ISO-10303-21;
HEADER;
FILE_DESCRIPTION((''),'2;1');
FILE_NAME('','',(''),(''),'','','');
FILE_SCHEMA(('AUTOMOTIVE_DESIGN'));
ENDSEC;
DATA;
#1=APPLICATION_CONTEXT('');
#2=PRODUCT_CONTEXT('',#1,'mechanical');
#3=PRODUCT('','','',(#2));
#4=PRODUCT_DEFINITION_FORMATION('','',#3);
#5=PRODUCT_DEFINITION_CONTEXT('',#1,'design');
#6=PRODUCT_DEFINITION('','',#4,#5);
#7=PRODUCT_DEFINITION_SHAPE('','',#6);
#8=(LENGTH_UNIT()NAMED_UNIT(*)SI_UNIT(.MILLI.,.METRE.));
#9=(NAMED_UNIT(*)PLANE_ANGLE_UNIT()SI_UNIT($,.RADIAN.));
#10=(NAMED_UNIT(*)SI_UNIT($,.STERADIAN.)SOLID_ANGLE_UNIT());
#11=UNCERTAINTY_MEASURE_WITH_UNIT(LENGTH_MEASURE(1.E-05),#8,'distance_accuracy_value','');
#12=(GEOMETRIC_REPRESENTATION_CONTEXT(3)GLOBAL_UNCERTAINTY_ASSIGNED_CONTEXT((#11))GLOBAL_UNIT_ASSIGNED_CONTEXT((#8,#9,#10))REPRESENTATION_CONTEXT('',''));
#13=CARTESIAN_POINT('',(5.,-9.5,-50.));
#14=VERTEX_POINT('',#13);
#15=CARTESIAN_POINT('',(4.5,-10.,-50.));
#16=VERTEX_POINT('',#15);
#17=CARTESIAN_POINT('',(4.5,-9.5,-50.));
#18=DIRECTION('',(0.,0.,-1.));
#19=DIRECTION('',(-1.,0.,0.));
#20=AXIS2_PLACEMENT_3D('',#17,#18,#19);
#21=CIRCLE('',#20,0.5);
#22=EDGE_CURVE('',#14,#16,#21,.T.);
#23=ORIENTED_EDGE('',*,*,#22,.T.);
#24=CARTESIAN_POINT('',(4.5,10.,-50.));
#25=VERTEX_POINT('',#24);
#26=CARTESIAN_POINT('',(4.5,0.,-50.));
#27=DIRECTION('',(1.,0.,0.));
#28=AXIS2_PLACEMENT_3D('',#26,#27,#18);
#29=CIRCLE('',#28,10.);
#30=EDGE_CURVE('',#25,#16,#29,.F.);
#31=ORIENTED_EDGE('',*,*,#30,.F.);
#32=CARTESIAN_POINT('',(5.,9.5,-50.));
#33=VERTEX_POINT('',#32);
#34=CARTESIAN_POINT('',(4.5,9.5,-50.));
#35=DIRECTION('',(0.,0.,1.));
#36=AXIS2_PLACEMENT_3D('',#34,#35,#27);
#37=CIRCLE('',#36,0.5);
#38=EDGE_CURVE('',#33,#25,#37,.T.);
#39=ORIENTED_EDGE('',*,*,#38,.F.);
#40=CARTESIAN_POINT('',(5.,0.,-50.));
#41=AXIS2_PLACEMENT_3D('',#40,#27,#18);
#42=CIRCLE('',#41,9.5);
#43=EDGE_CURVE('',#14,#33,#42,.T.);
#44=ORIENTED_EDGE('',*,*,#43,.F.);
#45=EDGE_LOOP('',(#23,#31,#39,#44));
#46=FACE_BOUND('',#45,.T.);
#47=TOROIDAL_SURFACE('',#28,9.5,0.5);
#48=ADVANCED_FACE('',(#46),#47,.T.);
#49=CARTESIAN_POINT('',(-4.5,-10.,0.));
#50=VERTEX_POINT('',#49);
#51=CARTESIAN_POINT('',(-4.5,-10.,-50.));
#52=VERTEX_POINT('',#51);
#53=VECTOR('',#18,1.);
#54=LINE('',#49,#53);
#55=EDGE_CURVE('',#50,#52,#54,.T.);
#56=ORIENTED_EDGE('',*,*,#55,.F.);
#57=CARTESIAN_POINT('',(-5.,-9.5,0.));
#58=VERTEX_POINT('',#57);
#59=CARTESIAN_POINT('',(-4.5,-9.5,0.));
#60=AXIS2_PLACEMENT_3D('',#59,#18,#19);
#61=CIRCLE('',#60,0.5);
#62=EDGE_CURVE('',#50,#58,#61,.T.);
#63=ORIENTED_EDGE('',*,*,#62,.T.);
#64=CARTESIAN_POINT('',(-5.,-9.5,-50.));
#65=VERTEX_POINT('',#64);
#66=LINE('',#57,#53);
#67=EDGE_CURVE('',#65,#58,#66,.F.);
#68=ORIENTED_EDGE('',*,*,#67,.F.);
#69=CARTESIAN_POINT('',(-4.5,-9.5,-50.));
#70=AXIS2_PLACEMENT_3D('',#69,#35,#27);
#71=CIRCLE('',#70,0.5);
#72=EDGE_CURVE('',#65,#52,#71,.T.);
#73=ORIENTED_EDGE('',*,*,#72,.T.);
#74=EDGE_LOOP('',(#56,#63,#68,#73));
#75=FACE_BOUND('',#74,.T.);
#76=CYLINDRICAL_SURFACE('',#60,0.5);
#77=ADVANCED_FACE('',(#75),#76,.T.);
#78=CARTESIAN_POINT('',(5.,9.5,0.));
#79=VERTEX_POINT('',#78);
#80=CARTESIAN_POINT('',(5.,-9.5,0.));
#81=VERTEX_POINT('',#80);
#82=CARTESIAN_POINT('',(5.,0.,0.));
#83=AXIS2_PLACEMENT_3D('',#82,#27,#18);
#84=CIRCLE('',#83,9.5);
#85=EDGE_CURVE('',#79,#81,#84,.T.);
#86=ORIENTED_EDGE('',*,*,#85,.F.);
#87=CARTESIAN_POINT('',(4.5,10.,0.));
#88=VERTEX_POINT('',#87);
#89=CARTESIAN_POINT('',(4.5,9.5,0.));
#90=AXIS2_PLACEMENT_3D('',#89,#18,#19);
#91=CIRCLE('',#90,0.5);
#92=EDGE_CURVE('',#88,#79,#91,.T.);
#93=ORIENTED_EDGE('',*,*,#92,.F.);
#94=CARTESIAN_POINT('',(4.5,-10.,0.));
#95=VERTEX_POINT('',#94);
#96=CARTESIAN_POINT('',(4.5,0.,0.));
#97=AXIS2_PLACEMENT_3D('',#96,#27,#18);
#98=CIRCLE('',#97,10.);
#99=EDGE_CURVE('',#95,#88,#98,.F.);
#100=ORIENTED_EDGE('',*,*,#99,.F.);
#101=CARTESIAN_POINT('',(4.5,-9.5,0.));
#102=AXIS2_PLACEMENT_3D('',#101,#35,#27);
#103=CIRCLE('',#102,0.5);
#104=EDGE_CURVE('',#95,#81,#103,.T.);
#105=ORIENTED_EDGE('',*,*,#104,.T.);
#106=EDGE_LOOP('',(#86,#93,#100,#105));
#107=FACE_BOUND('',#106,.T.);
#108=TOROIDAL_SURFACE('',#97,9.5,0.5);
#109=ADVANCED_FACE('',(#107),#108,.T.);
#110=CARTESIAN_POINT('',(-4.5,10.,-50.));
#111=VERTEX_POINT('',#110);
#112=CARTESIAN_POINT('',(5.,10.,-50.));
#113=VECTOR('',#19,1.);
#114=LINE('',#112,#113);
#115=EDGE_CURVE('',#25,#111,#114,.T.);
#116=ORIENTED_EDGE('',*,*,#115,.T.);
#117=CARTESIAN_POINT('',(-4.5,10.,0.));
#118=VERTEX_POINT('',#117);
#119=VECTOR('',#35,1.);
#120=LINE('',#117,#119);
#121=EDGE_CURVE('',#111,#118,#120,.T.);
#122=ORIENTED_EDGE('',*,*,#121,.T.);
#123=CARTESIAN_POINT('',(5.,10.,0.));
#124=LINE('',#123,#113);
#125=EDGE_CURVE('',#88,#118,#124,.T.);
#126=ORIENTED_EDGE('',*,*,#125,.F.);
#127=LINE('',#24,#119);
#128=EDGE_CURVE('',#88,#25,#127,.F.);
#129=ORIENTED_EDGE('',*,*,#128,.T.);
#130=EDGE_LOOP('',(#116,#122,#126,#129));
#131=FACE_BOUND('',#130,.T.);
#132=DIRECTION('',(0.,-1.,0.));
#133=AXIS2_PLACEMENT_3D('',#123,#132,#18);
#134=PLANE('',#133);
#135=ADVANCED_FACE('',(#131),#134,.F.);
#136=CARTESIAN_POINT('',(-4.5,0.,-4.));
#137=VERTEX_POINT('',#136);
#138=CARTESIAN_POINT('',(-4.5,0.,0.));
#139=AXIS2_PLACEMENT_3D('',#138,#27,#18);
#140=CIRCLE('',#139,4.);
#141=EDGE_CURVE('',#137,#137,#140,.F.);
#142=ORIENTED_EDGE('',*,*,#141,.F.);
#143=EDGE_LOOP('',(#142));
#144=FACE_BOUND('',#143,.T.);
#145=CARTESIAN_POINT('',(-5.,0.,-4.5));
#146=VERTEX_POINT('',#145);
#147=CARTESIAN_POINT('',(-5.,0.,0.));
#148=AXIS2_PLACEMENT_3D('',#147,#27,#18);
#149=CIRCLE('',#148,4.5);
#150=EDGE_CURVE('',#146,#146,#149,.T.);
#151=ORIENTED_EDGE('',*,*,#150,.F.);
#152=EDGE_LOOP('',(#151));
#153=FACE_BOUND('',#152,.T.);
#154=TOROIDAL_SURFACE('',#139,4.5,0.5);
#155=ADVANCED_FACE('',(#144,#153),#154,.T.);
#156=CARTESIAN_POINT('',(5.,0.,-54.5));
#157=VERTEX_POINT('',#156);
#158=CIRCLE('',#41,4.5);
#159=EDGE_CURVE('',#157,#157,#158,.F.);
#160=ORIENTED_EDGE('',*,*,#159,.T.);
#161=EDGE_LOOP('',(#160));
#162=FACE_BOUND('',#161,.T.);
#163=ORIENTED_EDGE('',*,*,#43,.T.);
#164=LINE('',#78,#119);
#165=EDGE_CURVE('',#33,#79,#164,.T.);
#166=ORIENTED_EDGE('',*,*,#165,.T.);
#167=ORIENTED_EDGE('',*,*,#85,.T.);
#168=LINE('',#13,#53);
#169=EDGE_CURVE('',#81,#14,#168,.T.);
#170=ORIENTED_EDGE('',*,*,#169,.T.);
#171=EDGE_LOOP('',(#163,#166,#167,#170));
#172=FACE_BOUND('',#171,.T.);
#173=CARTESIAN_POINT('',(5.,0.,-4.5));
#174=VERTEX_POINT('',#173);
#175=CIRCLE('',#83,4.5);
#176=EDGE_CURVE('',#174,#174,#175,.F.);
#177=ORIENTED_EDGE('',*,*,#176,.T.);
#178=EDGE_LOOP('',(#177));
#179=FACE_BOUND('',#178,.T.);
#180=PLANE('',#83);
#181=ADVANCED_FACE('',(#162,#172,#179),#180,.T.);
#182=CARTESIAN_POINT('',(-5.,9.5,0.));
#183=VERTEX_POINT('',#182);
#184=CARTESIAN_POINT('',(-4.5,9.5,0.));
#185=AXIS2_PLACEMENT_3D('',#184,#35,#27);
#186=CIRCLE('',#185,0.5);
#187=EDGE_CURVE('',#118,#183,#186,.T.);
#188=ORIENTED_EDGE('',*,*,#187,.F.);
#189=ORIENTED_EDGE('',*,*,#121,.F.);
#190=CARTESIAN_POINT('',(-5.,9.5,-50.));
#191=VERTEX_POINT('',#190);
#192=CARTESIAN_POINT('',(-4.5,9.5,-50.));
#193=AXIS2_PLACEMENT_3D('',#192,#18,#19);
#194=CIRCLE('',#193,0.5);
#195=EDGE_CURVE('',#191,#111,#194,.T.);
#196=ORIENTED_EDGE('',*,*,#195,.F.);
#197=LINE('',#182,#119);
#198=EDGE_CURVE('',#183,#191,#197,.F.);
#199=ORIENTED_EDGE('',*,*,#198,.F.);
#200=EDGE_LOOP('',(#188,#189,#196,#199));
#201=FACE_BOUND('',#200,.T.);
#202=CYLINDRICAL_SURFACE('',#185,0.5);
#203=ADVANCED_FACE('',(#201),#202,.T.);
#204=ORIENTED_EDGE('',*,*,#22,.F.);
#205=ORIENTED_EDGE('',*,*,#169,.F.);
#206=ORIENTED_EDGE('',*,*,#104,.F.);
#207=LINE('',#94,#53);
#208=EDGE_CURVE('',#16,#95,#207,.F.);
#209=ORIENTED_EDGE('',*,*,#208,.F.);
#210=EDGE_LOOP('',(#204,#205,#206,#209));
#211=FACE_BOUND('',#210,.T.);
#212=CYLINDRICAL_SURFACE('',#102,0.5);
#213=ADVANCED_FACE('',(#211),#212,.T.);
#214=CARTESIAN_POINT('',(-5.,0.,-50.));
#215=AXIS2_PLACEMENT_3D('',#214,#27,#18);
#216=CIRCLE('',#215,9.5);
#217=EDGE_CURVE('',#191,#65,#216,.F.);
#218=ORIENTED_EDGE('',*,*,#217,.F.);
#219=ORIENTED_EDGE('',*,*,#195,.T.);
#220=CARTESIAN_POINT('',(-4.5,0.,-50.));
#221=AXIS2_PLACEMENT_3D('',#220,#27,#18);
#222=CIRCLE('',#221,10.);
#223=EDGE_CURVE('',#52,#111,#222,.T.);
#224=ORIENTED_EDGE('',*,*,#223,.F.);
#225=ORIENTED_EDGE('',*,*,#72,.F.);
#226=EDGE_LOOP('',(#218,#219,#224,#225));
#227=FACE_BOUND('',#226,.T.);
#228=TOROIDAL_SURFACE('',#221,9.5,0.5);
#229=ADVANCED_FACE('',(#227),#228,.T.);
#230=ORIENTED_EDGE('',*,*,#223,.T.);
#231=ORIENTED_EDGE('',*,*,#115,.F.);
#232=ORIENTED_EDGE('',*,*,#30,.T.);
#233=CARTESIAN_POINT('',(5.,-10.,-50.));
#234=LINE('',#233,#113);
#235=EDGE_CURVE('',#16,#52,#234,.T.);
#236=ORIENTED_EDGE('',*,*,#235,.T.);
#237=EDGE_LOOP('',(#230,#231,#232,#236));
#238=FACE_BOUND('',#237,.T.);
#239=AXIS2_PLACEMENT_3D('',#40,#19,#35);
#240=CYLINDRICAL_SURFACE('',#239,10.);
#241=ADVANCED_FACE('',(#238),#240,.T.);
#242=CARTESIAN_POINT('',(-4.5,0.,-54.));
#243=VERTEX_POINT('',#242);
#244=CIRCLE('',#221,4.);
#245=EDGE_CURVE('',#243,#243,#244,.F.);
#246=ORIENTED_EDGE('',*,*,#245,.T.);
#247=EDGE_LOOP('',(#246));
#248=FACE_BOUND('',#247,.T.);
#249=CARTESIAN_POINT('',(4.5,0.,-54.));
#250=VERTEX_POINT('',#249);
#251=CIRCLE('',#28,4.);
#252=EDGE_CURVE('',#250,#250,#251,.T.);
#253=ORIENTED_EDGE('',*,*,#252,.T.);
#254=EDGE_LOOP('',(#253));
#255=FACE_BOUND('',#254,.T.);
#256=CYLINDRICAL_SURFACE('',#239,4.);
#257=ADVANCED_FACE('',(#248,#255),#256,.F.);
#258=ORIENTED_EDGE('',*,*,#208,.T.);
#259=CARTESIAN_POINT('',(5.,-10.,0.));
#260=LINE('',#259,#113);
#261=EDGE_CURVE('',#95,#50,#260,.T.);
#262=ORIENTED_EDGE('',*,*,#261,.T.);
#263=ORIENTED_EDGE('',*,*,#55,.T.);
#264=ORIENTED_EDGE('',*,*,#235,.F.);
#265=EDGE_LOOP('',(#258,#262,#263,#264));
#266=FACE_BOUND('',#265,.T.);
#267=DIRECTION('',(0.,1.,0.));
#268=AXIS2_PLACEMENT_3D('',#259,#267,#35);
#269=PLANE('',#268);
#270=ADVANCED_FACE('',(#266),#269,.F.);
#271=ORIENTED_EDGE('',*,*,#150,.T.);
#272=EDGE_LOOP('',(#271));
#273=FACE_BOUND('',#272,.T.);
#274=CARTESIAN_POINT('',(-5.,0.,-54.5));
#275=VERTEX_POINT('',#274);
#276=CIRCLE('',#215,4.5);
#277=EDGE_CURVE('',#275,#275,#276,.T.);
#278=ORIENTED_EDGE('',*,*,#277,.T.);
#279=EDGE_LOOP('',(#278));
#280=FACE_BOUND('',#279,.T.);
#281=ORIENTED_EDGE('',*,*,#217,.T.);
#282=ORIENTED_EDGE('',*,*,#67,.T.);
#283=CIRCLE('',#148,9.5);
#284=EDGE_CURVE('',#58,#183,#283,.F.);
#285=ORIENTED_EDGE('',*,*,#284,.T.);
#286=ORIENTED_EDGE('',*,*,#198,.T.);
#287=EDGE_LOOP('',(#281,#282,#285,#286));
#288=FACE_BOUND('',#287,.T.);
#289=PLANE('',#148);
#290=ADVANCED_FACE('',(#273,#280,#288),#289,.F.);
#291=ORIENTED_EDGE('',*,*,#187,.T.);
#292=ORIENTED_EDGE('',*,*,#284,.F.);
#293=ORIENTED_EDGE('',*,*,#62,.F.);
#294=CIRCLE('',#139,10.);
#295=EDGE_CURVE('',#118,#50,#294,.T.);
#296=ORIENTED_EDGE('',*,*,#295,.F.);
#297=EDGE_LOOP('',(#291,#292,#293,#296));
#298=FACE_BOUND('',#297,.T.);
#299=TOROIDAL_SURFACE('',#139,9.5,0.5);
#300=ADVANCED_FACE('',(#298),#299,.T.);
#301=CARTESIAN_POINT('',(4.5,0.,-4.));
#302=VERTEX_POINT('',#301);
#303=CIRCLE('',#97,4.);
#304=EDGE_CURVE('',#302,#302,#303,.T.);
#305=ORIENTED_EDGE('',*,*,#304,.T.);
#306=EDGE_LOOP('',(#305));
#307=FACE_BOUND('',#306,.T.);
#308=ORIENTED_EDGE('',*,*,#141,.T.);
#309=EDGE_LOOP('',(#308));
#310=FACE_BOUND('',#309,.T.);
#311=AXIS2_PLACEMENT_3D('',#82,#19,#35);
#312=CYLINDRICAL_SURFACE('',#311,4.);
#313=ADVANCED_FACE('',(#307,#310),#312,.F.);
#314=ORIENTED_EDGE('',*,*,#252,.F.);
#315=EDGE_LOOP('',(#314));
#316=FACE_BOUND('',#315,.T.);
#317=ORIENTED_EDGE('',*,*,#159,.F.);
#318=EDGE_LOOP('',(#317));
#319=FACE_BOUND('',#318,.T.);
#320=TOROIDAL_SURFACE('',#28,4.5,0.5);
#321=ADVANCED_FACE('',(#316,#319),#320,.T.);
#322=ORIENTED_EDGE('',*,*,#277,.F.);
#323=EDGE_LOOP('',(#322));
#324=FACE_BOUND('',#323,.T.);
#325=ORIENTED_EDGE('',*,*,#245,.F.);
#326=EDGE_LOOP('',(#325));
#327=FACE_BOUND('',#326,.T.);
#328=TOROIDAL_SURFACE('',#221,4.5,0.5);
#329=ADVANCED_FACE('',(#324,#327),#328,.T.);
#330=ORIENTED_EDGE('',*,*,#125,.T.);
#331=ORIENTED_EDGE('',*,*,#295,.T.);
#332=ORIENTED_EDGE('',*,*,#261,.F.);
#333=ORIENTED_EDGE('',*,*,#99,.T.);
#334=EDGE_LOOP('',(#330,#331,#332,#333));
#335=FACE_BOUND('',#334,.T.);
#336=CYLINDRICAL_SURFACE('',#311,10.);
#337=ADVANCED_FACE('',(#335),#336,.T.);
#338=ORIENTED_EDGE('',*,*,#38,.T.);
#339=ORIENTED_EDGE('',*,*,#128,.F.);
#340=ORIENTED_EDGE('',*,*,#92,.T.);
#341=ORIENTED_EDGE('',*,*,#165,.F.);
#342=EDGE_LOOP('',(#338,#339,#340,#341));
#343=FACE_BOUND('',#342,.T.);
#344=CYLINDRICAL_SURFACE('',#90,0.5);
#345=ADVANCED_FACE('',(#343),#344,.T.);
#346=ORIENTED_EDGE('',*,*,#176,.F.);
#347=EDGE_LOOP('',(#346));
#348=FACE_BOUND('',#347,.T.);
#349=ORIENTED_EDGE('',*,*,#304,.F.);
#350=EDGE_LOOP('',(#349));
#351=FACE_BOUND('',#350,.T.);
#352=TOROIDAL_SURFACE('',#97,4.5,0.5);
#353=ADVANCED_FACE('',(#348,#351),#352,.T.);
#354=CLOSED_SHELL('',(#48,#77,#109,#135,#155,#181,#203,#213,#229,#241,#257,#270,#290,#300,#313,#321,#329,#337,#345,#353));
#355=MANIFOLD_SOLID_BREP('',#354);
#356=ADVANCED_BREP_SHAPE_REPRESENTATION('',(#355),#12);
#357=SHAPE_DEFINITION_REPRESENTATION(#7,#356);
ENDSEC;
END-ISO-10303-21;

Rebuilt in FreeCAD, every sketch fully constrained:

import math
import FreeCAD as App
import Part
import Sketcher
from FreeCAD import Vector


def edges_at(feature, points):
    """Names of the edges that pass closest to the given points."""
    edges = feature.Shape.Edges
    near = lambda p: min(range(len(edges)), key=lambda i: edges[i].distToShape(Part.Vertex(*p))[0])
    return sorted({f"Edge{near(p) + 1}" for p in points})

doc = App.newDocument("Part")
params = doc.addObject("Spreadsheet::Sheet", "Params")
for row, (alias, value) in enumerate([
    ("sketch1_diameter", "8 mm"),
    ("sketch1_radius", "10 mm"),
    ("sketch1_height", "50 mm"),
    ("pad1_length", "10 mm"),
    ("fillet_radius", "0.5 mm"),
], start=1):
    params.set(f"A{row}", alias)
    params.set(f"B{row}", "=" + value)
    params.setAlias(f"B{row}", alias)

body = doc.addObject("PartDesign::Body", "Body")

# Sketch on YZ plane
sketch1 = body.newObject("Sketcher::SketchObject", "Sketch")
sketch1.AttachmentSupport = (doc.getObject("YZ_Plane"), [""])
sketch1.MapMode = "FlatFace"
sketch1.addGeometry([
    Part.LineSegment(Vector(10, -50, 0), Vector(10, 0, 0)),  # 0
    Part.ArcOfCircle(Part.Circle(Vector(0, 0, 0), Vector(0, 0, 1), 10), math.radians(0), math.radians(180)),  # 1
    Part.LineSegment(Vector(-10, 0, 0), Vector(-10, -50, 0)),  # 2
    Part.ArcOfCircle(Part.Circle(Vector(0, -50, 0), Vector(0, 0, 1), 10), math.radians(180), math.radians(360)),  # 3
    Part.Circle(Vector(0, -50, 0), Vector(0, 0, 1), 4),  # 4
    Part.Circle(Vector(0, 0, 0), Vector(0, 0, 1), 4),  # 5
], False)
sketch1.addConstraint([
    Sketcher.Constraint("Tangent", 0, 2, 1, 1),
    Sketcher.Constraint("Tangent", 1, 2, 2, 1),
    Sketcher.Constraint("Tangent", 2, 2, 3, 1),
    Sketcher.Constraint("Tangent", 3, 2, 0, 1),
    Sketcher.Constraint("Vertical", 0),
    Sketcher.Constraint("Vertical", 2),
    Sketcher.Constraint("Coincident", 1, 3, -1, 1),
    Sketcher.Constraint("Coincident", 5, 3, -1, 1),
    Sketcher.Constraint("Coincident", 4, 3, 3, 3),
    Sketcher.Constraint("Equal", 4, 5),
    Sketcher.Constraint("Diameter", 4, 8.0),
    Sketcher.Constraint("Radius", 1, 10.0),
    Sketcher.Constraint("DistanceY", 0, 1, 0, 2, 50.0),
])
sketch1.setExpression("Constraints[10]", "Params.sketch1_diameter")
sketch1.setExpression("Constraints[11]", "Params.sketch1_radius")
sketch1.setExpression("Constraints[12]", "Params.sketch1_height")
pad1 = body.newObject("PartDesign::Pad", "Pad")
pad1.Profile = sketch1
pad1.setExpression("Length", "Params.pad1_length")
pad1.Midplane = True
doc.recompute()

fillet = body.newObject("PartDesign::Fillet", "Fillet")
fillet.Base = (pad1, edges_at(pad1, [
    (-5, 0, 4),
    (5, 0, 4),
    (5, 0, -60),
    (-5, 0, -46),
    (5, 0, -46),
    (5, 10, -25),
    (5, 0, 10),
    (-5, 10, -25),
    (-5, 0, -60),
    (-5, -10, -25),
    (-5, 0, 10),
    (5, -10, -25),
]))
fillet.setExpression("Radius", "Params.fillet_radius")

doc.recompute()
